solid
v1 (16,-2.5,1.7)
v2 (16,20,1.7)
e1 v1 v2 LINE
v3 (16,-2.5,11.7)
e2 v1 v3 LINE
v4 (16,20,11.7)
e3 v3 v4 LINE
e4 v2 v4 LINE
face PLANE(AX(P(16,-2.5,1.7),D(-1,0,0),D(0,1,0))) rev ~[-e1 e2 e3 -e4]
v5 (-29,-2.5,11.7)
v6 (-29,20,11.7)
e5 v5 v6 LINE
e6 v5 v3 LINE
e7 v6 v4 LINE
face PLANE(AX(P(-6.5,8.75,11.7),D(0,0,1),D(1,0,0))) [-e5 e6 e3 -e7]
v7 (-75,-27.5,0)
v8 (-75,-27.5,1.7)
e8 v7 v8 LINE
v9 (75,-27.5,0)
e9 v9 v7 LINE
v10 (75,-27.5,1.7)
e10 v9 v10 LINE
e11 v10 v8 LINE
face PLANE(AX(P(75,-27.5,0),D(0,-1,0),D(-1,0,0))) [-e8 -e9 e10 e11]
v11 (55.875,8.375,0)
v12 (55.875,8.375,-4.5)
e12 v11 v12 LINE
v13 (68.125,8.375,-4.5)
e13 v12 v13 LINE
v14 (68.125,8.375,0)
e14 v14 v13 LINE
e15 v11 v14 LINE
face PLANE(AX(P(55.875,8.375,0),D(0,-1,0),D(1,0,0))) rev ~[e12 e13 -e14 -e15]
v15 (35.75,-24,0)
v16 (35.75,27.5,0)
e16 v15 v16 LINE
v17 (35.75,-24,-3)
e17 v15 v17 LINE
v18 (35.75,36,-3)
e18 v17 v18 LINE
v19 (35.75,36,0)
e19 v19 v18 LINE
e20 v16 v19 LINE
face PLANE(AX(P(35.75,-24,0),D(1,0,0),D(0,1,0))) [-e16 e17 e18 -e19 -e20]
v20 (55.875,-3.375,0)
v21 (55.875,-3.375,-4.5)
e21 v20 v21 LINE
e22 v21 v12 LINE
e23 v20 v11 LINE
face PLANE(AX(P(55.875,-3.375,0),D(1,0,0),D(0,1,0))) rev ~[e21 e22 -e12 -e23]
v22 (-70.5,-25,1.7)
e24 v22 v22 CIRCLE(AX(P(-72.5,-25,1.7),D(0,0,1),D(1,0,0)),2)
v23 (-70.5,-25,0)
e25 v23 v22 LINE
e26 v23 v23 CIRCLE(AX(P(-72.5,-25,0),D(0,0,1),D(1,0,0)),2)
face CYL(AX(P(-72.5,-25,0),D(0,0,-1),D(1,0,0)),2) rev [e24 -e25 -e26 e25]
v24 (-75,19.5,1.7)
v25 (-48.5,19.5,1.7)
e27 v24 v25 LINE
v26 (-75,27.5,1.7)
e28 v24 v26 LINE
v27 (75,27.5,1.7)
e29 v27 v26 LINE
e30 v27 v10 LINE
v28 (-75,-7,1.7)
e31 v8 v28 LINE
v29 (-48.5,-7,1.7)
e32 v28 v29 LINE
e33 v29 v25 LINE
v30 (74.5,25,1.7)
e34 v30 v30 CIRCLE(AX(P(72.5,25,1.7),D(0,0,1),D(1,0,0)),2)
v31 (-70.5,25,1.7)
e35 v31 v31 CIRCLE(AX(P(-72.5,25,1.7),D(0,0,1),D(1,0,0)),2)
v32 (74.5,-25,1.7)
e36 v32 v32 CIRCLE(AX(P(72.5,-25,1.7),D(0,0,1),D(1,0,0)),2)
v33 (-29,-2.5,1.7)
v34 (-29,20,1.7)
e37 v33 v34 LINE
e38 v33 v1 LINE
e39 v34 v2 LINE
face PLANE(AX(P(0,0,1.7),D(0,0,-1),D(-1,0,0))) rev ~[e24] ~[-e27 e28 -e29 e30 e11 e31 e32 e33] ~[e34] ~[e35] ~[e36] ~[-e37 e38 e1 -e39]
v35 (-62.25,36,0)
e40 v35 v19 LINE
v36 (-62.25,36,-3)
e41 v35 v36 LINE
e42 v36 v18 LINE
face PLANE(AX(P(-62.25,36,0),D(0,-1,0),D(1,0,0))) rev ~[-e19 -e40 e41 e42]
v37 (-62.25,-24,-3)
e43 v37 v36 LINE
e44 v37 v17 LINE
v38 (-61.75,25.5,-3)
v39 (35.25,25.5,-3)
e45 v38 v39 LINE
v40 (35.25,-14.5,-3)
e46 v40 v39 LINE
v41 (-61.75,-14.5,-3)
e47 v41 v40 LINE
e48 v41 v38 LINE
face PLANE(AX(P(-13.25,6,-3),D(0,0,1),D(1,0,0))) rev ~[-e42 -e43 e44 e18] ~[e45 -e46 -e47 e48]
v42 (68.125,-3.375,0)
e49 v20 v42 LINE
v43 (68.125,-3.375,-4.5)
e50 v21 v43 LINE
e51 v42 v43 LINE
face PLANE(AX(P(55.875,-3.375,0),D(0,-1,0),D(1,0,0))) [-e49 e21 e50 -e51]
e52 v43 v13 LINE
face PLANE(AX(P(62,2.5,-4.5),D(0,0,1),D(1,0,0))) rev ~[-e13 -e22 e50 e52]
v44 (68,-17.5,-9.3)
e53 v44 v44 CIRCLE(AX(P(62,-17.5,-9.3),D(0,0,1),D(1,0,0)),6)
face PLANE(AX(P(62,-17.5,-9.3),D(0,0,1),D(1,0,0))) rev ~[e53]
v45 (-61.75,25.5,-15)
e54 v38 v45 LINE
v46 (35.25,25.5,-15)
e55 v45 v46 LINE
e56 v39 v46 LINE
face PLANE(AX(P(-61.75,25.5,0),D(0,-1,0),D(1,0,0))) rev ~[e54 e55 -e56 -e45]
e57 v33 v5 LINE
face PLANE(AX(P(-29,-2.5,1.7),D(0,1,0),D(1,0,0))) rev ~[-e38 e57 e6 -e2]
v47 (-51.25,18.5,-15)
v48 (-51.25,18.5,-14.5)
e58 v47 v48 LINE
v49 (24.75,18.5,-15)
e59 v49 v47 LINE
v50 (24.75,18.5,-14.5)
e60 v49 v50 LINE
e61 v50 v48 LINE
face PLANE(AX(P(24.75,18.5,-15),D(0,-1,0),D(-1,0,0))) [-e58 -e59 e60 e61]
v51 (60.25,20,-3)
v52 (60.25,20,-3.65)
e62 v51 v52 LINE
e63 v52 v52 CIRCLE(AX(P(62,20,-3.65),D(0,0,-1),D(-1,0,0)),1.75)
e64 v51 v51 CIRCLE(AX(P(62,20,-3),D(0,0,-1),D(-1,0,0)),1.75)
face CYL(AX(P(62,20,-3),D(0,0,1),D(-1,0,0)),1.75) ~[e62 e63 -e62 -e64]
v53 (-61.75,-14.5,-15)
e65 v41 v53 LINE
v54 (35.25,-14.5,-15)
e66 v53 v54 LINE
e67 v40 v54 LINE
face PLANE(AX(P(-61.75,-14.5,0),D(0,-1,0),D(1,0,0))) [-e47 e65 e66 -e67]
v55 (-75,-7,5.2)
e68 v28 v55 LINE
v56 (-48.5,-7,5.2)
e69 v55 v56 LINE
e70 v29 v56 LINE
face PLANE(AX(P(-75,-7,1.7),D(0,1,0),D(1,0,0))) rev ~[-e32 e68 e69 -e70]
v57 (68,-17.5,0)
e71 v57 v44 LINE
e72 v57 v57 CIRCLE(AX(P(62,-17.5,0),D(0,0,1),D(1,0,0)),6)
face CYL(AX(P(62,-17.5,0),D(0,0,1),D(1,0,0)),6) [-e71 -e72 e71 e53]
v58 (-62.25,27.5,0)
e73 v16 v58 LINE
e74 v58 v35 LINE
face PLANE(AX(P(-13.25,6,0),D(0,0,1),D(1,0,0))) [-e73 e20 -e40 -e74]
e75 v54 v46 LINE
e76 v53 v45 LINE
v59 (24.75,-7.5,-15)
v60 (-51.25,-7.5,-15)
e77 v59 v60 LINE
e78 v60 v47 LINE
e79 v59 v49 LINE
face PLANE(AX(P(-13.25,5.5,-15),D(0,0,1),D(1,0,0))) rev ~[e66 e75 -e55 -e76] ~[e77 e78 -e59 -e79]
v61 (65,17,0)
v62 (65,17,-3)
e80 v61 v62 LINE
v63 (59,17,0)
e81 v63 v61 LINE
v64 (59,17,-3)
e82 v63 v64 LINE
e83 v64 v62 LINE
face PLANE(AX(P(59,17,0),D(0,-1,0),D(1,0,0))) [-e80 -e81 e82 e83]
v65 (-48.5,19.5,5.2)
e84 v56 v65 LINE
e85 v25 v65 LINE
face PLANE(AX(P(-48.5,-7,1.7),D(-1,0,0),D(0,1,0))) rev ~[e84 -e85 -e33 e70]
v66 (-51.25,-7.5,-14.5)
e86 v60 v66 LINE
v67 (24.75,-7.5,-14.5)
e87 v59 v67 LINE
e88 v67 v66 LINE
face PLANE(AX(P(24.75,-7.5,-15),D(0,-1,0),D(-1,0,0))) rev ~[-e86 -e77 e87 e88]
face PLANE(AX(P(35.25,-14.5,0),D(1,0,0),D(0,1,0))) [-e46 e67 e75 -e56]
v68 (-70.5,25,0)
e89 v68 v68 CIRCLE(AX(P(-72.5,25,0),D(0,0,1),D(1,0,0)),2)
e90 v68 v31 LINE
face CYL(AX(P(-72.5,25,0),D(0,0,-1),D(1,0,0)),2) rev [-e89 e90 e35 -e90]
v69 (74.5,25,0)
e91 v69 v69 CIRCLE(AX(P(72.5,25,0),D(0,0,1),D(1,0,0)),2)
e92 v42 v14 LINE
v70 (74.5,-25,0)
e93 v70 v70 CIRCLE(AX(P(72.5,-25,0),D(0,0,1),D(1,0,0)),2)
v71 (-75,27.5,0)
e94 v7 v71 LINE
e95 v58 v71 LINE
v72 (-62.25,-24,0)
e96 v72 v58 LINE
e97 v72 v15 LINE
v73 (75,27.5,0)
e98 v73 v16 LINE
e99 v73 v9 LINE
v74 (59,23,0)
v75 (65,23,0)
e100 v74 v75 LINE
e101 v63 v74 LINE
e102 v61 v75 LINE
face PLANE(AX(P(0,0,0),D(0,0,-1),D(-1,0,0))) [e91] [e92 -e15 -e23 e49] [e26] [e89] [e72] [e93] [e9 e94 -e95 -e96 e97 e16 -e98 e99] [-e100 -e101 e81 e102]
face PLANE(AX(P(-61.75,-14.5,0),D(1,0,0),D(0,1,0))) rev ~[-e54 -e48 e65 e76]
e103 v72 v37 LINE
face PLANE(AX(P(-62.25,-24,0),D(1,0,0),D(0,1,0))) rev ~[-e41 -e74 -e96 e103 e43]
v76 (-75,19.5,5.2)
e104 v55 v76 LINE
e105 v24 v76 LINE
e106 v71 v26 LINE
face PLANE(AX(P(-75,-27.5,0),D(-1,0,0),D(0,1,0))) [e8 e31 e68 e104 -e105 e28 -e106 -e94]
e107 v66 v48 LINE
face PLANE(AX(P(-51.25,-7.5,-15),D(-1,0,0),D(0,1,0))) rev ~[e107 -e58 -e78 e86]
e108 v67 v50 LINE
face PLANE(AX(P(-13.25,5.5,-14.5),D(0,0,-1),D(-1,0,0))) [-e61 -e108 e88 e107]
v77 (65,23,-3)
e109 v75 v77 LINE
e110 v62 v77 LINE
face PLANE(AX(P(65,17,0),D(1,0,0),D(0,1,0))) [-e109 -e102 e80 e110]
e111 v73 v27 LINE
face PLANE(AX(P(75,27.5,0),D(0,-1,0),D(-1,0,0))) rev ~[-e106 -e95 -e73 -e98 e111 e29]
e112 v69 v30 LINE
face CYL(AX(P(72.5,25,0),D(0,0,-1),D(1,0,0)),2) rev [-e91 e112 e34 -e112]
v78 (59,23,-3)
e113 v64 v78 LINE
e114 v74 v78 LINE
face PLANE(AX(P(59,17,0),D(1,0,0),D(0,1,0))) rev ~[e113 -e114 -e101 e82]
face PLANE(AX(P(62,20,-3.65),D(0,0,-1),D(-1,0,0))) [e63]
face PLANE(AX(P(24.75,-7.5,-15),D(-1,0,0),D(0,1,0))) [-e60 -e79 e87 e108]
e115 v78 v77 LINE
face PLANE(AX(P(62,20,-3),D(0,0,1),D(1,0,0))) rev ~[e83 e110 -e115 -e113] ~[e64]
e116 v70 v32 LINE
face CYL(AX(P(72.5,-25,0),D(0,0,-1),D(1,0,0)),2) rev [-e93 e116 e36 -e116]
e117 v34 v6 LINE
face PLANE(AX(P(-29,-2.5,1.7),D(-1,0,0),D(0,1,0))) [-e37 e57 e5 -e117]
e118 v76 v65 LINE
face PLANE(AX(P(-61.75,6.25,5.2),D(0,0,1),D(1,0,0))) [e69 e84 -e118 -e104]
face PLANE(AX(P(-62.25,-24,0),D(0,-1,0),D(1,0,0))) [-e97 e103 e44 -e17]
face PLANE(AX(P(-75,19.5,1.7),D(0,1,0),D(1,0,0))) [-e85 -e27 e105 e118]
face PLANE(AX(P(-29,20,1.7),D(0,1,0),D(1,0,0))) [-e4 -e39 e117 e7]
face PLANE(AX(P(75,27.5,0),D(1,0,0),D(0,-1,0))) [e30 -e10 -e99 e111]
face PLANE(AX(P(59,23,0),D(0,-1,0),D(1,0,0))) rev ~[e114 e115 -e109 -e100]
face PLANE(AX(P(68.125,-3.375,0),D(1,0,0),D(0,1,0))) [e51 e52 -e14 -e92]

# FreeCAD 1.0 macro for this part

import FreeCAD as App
import Part
import Sketcher

V = App.Vector

doc = App.newDocument("Part")
body = doc.addObject("PartDesign::Body", "Body")

sketch1 = doc.addObject("Sketcher::SketchObject", "Sketch")
body.addObject(sketch1)
sketch1.AttachmentSupport = (doc.XY_Plane, [""])
sketch1.MapMode = "FlatFace"
sketch1.addGeometry(Part.LineSegment(V(75, -27.5, 0), V(75, 27.5, 0)), False)
sketch1.addGeometry(Part.LineSegment(V(75, 27.5, 0), V(-75, 27.5, 0)), False)
sketch1.addGeometry(Part.LineSegment(V(-75, 27.5, 0), V(-75, -27.5, 0)), False)
sketch1.addGeometry(Part.LineSegment(V(-75, -27.5, 0), V(75, -27.5, 0)), False)
sketch1.addGeometry(Part.Circle(V(72.5, -25, 0), V(0, 0, 1), 2), False)
sketch1.addGeometry(Part.Circle(V(-72.5, -25, 0), V(0, 0, 1), 2), False)
sketch1.addGeometry(Part.Circle(V(72.5, 25, 0), V(0, 0, 1), 2), False)
sketch1.addGeometry(Part.Circle(V(-72.5, 25, 0), V(0, 0, 1), 2), False)
sketch1.addConstraint(Sketcher.Constraint("Coincident", 0, 2, 1, 1))
sketch1.addConstraint(Sketcher.Constraint("Coincident", 1, 2, 2, 1))
sketch1.addConstraint(Sketcher.Constraint("Coincident", 2, 2, 3, 1))
sketch1.addConstraint(Sketcher.Constraint("Coincident", 3, 2, 0, 1))
sketch1.addConstraint(Sketcher.Constraint("Vertical", 0))
sketch1.addConstraint(Sketcher.Constraint("Horizontal", 1))
sketch1.addConstraint(Sketcher.Constraint("Vertical", 2))
sketch1.addConstraint(Sketcher.Constraint("Horizontal", 3))
sketch1.addConstraint(Sketcher.Constraint("Equal", 4, 5))
sketch1.addConstraint(Sketcher.Constraint("Equal", 5, 6))
sketch1.addConstraint(Sketcher.Constraint("Equal", 6, 7))
sketch1.addConstraint(Sketcher.Constraint("Symmetric", 5, 3, 6, 3, -1, 1))
sketch1.addConstraint(Sketcher.Constraint("Symmetric", 4, 3, 7, 3, -1, 1))
sketch1.addConstraint(Sketcher.Constraint("Symmetric", 0, 2, 2, 2, -1, 1))
sketch1.addConstraint(Sketcher.Constraint("Symmetric", 4, 3, 5, 3, -2))
sketch1.addConstraint(Sketcher.Constraint("Diameter", 4, 4.0))
sketch1.addConstraint(Sketcher.Constraint("DistanceX", 1, 2, 1, 1, 150.0))
sketch1.addConstraint(Sketcher.Constraint("DistanceY", 0, 1, 0, 2, 55.0))
sketch1.addConstraint(Sketcher.Constraint("DistanceY", 4, 3, -1, 1, 25.0))
sketch1.addConstraint(Sketcher.Constraint("DistanceX", 5, 3, 4, 3, 145.0))
pad1 = doc.addObject("PartDesign::Pad", "Pad")
body.addObject(pad1)
pad1.Profile = sketch1
pad1.Length = 1.7

sketch2 = doc.addObject("Sketcher::SketchObject", "Sketch001")
body.addObject(sketch2)
sketch2.AttachmentSupport = (doc.XY_Plane, [""])
sketch2.MapMode = "FlatFace"
sketch2.addGeometry(Part.LineSegment(V(-62.25, 36, 0), V(-62.25, -24, 0)), False)
sketch2.addGeometry(Part.LineSegment(V(-62.25, -24, 0), V(35.75, -24, 0)), False)
sketch2.addGeometry(Part.LineSegment(V(35.75, -24, 0), V(35.75, 36, 0)), False)
sketch2.addGeometry(Part.LineSegment(V(35.75, 36, 0), V(-62.25, 36, 0)), False)
sketch2.addConstraint(Sketcher.Constraint("Coincident", 0, 2, 1, 1))
sketch2.addConstraint(Sketcher.Constraint("Coincident", 1, 2, 2, 1))
sketch2.addConstraint(Sketcher.Constraint("Coincident", 2, 2, 3, 1))
sketch2.addConstraint(Sketcher.Constraint("Coincident", 3, 2, 0, 1))
sketch2.addConstraint(Sketcher.Constraint("Vertical", 0))
sketch2.addConstraint(Sketcher.Constraint("Horizontal", 1))
sketch2.addConstraint(Sketcher.Constraint("Vertical", 2))
sketch2.addConstraint(Sketcher.Constraint("Horizontal", 3))
sketch2.addConstraint(Sketcher.Constraint("DistanceX", 1, 1, 1, 2, 98.0))
sketch2.addConstraint(Sketcher.Constraint("DistanceY", 0, 2, 0, 1, 60.0))
sketch2.addConstraint(Sketcher.Constraint("DistanceY", 0, 2, -1, 1, 24.0))
sketch2.addConstraint(Sketcher.Constraint("DistanceX", 0, 2, -1, 1, 62.25))
pad2 = doc.addObject("PartDesign::Pad", "Pad001")
body.addObject(pad2)
pad2.Profile = sketch2
pad2.Length = 3
pad2.Reversed = True

sketch3 = doc.addObject("Sketcher::SketchObject", "Sketch002")
body.addObject(sketch3)
sketch3.AttachmentSupport = (doc.XY_Plane, [""])
sketch3.MapMode = "FlatFace"
sketch3.addGeometry(Part.LineSegment(V(-61.75, 25.5, 0), V(-61.75, -14.5, 0)), False)
sketch3.addGeometry(Part.LineSegment(V(-61.75, -14.5, 0), V(35.25, -14.5, 0)), False)
sketch3.addGeometry(Part.LineSegment(V(35.25, -14.5, 0), V(35.25, 25.5, 0)), False)
sketch3.addGeometry(Part.LineSegment(V(35.25, 25.5, 0), V(-61.75, 25.5, 0)), False)
sketch3.addConstraint(Sketcher.Constraint("Coincident", 0, 2, 1, 1))
sketch3.addConstraint(Sketcher.Constraint("Coincident", 1, 2, 2, 1))
sketch3.addConstraint(Sketcher.Constraint("Coincident", 2, 2, 3, 1))
sketch3.addConstraint(Sketcher.Constraint("Coincident", 3, 2, 0, 1))
sketch3.addConstraint(Sketcher.Constraint("Vertical", 0))
sketch3.addConstraint(Sketcher.Constraint("Horizontal", 1))
sketch3.addConstraint(Sketcher.Constraint("Vertical", 2))
sketch3.addConstraint(Sketcher.Constraint("Horizontal", 3))
sketch3.addConstraint(Sketcher.Constraint("DistanceX", 1, 1, 1, 2, 97.0))
sketch3.addConstraint(Sketcher.Constraint("DistanceY", 0, 2, 0, 1, 40.0))
sketch3.addConstraint(Sketcher.Constraint("DistanceY", 0, 2, -1, 1, 14.5))
sketch3.addConstraint(Sketcher.Constraint("DistanceX", 0, 2, -1, 1, 61.75))
pad3 = doc.addObject("PartDesign::Pad", "Pad002")
body.addObject(pad3)
pad3.Profile = sketch3
pad3.Length = 15
pad3.Reversed = True

sketch4 = doc.addObject("Sketcher::SketchObject", "Sketch003")
body.addObject(sketch4)
sketch4.AttachmentSupport = (doc.XY_Plane, [""])
sketch4.MapMode = "FlatFace"
sketch4.addGeometry(Part.LineSegment(V(59, 23, 0), V(59, 17, 0)), False)
sketch4.addGeometry(Part.LineSegment(V(59, 17, 0), V(65, 17, 0)), False)
sketch4.addGeometry(Part.LineSegment(V(65, 17, 0), V(65, 23, 0)), False)
sketch4.addGeometry(Part.LineSegment(V(65, 23, 0), V(59, 23, 0)), False)
sketch4.addConstraint(Sketcher.Constraint("Coincident", 0, 2, 1, 1))
sketch4.addConstraint(Sketcher.Constraint("Coincident", 1, 2, 2, 1))
sketch4.addConstraint(Sketcher.Constraint("Coincident", 2, 2, 3, 1))
sketch4.addConstraint(Sketcher.Constraint("Coincident", 3, 2, 0, 1))
sketch4.addConstraint(Sketcher.Constraint("Vertical", 0))
sketch4.addConstraint(Sketcher.Constraint("Horizontal", 1))
sketch4.addConstraint(Sketcher.Constraint("Vertical", 2))
sketch4.addConstraint(Sketcher.Constraint("Horizontal", 3))
sketch4.addConstraint(Sketcher.Constraint("Equal", 3, 0))
sketch4.addConstraint(Sketcher.Constraint("DistanceX", 1, 1, 1, 2, 6.0))
sketch4.addConstraint(Sketcher.Constraint("DistanceX", -1, 1, 0, 2, 59.0))
sketch4.addConstraint(Sketcher.Constraint("DistanceY", -1, 1, 0, 2, 17.0))
pad4 = doc.addObject("PartDesign::Pad", "Pad003")
body.addObject(pad4)
pad4.Profile = sketch4
pad4.Length = 3
pad4.Reversed = True

sketch5 = doc.addObject("Sketcher::SketchObject", "Sketch004")
body.addObject(sketch5)
sketch5.AttachmentSupport = (doc.XY_Plane, [""])
sketch5.MapMode = "FlatFace"
sketch5.AttachmentOffset = App.Placement(V(0, 0, -3), App.Rotation())
sketch5.addGeometry(Part.Circle(V(62, 20, 0), V(0, 0, 1), 1.75), False)
sketch5.addConstraint(Sketcher.Constraint("Diameter", 0, 3.5))
sketch5.addConstraint(Sketcher.Constraint("DistanceX", -1, 1, 0, 3, 62.0))
sketch5.addConstraint(Sketcher.Constraint("DistanceY", -1, 1, 0, 3, 20.0))
pad5 = doc.addObject("PartDesign::Pad", "Pad004")
body.addObject(pad5)
pad5.Profile = sketch5
pad5.Length = 0.65
pad5.Reversed = True

sketch6 = doc.addObject("Sketcher::SketchObject", "Sketch005")
body.addObject(sketch6)
sketch6.AttachmentSupport = (doc.XY_Plane, [""])
sketch6.MapMode = "FlatFace"
sketch6.addGeometry(Part.LineSegment(V(55.875, 8.375, 0), V(55.875, -3.375, 0)), False)
sketch6.addGeometry(Part.LineSegment(V(55.875, -3.375, 0), V(68.125, -3.375, 0)), False)
sketch6.addGeometry(Part.LineSegment(V(68.125, -3.375, 0), V(68.125, 8.375, 0)), False)
sketch6.addGeometry(Part.LineSegment(V(68.125, 8.375, 0), V(55.875, 8.375, 0)), False)
sketch6.addConstraint(Sketcher.Constraint("Coincident", 0, 2, 1, 1))
sketch6.addConstraint(Sketcher.Constraint("Coincident", 1, 2, 2, 1))
sketch6.addConstraint(Sketcher.Constraint("Coincident", 2, 2, 3, 1))
sketch6.addConstraint(Sketcher.Constraint("Coincident", 3, 2, 0, 1))
sketch6.addConstraint(Sketcher.Constraint("Vertical", 0))
sketch6.addConstraint(Sketcher.Constraint("Horizontal", 1))
sketch6.addConstraint(Sketcher.Constraint("Vertical", 2))
sketch6.addConstraint(Sketcher.Constraint("Horizontal", 3))
sketch6.addConstraint(Sketcher.Constraint("DistanceX", 1, 1, 1, 2, 12.25))
sketch6.addConstraint(Sketcher.Constraint("DistanceY", 0, 2, 0, 1, 11.75))
sketch6.addConstraint(Sketcher.Constraint("DistanceX", -1, 1, 0, 2, 55.875))
sketch6.addConstraint(Sketcher.Constraint("DistanceY", 0, 2, -1, 1, 3.375))
pad6 = doc.addObject("PartDesign::Pad", "Pad005")
body.addObject(pad6)
pad6.Profile = sketch6
pad6.Length = 4.5
pad6.Reversed = True

sketch7 = doc.addObject("Sketcher::SketchObject", "Sketch006")
body.addObject(sketch7)
sketch7.AttachmentSupport = (doc.XY_Plane, [""])
sketch7.MapMode = "FlatFace"
sketch7.addGeometry(Part.Circle(V(62, -17.5, 0), V(0, 0, 1), 6), False)
sketch7.addConstraint(Sketcher.Constraint("Diameter", 0, 12.0))
sketch7.addConstraint(Sketcher.Constraint("DistanceX", -1, 1, 0, 3, 62.0))
sketch7.addConstraint(Sketcher.Constraint("DistanceY", 0, 3, -1, 1, 17.5))
pad7 = doc.addObject("PartDesign::Pad", "Pad006")
body.addObject(pad7)
pad7.Profile = sketch7
pad7.Length = 9.3
pad7.Reversed = True

sketch8 = doc.addObject("Sketcher::SketchObject", "Sketch007")
body.addObject(sketch8)
sketch8.AttachmentSupport = (doc.XY_Plane, [""])
sketch8.MapMode = "FlatFace"
sketch8.AttachmentOffset = App.Placement(V(0, 0, 1.7), App.Rotation())
sketch8.addGeometry(Part.LineSegment(V(-29, 20, 0), V(-29, -2.5, 0)), False)
sketch8.addGeometry(Part.LineSegment(V(-29, -2.5, 0), V(16, -2.5, 0)), False)
sketch8.addGeometry(Part.LineSegment(V(16, -2.5, 0), V(16, 20, 0)), False)
sketch8.addGeometry(Part.LineSegment(V(16, 20, 0), V(-29, 20, 0)), False)
sketch8.addConstraint(Sketcher.Constraint("Coincident", 0, 2, 1, 1))
sketch8.addConstraint(Sketcher.Constraint("Coincident", 1, 2, 2, 1))
sketch8.addConstraint(Sketcher.Constraint("Coincident", 2, 2, 3, 1))
sketch8.addConstraint(Sketcher.Constraint("Coincident", 3, 2, 0, 1))
sketch8.addConstraint(Sketcher.Constraint("Vertical", 0))
sketch8.addConstraint(Sketcher.Constraint("Horizontal", 1))
sketch8.addConstraint(Sketcher.Constraint("Vertical", 2))
sketch8.addConstraint(Sketcher.Constraint("Horizontal", 3))
sketch8.addConstraint(Sketcher.Constraint("DistanceX", 1, 1, 1, 2, 45.0))
sketch8.addConstraint(Sketcher.Constraint("DistanceY", 0, 2, 0, 1, 22.5))
sketch8.addConstraint(Sketcher.Constraint("DistanceX", 0, 2, -1, 1, 29.0))
sketch8.addConstraint(Sketcher.Constraint("DistanceY", -1, 1, 2, 2, 20.0))
pad8 = doc.addObject("PartDesign::Pad", "Pad007")
body.addObject(pad8)
pad8.Profile = sketch8
pad8.Length = 10

sketch9 = doc.addObject("Sketcher::SketchObject", "Sketch008")
body.addObject(sketch9)
sketch9.AttachmentSupport = (doc.XY_Plane, [""])
sketch9.MapMode = "FlatFace"
sketch9.AttachmentOffset = App.Placement(V(0, 0, 1.7), App.Rotation())
sketch9.addGeometry(Part.LineSegment(V(-75, 19.5, 0), V(-75, -7, 0)), False)
sketch9.addGeometry(Part.LineSegment(V(-75, -7, 0), V(-48.5, -7, 0)), False)
sketch9.addGeometry(Part.LineSegment(V(-48.5, -7, 0), V(-48.5, 19.5, 0)), False)
sketch9.addGeometry(Part.LineSegment(V(-48.5, 19.5, 0), V(-75, 19.5, 0)), False)
sketch9.addConstraint(Sketcher.Constraint("Coincident", 0, 2, 1, 1))
sketch9.addConstraint(Sketcher.Constraint("Coincident", 1, 2, 2, 1))
sketch9.addConstraint(Sketcher.Constraint("Coincident", 2, 2, 3, 1))
sketch9.addConstraint(Sketcher.Constraint("Coincident", 3, 2, 0, 1))
sketch9.addConstraint(Sketcher.Constraint("Vertical", 0))
sketch9.addConstraint(Sketcher.Constraint("Horizontal", 1))
sketch9.addConstraint(Sketcher.Constraint("Vertical", 2))
sketch9.addConstraint(Sketcher.Constraint("Horizontal", 3))
sketch9.addConstraint(Sketcher.Constraint("Equal", 3, 0))
sketch9.addConstraint(Sketcher.Constraint("DistanceX", 1, 1, 1, 2, 26.5))
sketch9.addConstraint(Sketcher.Constraint("DistanceX", 0, 2, -1, 1, 75.0))
sketch9.addConstraint(Sketcher.Constraint("DistanceY", 0, 2, -1, 1, 7.0))
pad9 = doc.addObject("PartDesign::Pad", "Pad008")
body.addObject(pad9)
pad9.Profile = sketch9
pad9.Length = 3.5

sketch10 = doc.addObject("Sketcher::SketchObject", "Sketch009")
body.addObject(sketch10)
sketch10.AttachmentSupport = (doc.XY_Plane, [""])
sketch10.MapMode = "FlatFace"
sketch10.AttachmentOffset = App.Placement(V(0, 0, -15), App.Rotation())
sketch10.addGeometry(Part.LineSegment(V(24.75, 18.5, 0), V(24.75, -7.5, 0)), False)
sketch10.addGeometry(Part.LineSegment(V(24.75, -7.5, 0), V(-51.25, -7.5, 0)), False)
sketch10.addGeometry(Part.LineSegment(V(-51.25, -7.5, 0), V(-51.25, 18.5, 0)), False)
sketch10.addGeometry(Part.LineSegment(V(-51.25, 18.5, 0), V(24.75, 18.5, 0)), False)
sketch10.addConstraint(Sketcher.Constraint("Coincident", 0, 2, 1, 1))
sketch10.addConstraint(Sketcher.Constraint("Coincident", 1, 2, 2, 1))
sketch10.addConstraint(Sketcher.Constraint("Coincident", 2, 2, 3, 1))
sketch10.addConstraint(Sketcher.Constraint("Coincident", 3, 2, 0, 1))
sketch10.addConstraint(Sketcher.Constraint("Vertical", 0))
sketch10.addConstraint(Sketcher.Constraint("Horizontal", 1))
sketch10.addConstraint(Sketcher.Constraint("Vertical", 2))
sketch10.addConstraint(Sketcher.Constraint("Horizontal", 3))
sketch10.addConstraint(Sketcher.Constraint("DistanceX", 1, 2, 1, 1, 76.0))
sketch10.addConstraint(Sketcher.Constraint("DistanceY", 0, 2, 0, 1, 26.0))
sketch10.addConstraint(Sketcher.Constraint("DistanceY", 0, 2, -1, 1, 7.5))
sketch10.addConstraint(Sketcher.Constraint("DistanceX", -1, 1, 0, 2, 24.75))
pocket1 = doc.addObject("PartDesign::Pocket", "Pocket")
body.addObject(pocket1)
pocket1.Profile = sketch10
pocket1.Length = 0.5
pocket1.Reversed = True

doc.recompute()
